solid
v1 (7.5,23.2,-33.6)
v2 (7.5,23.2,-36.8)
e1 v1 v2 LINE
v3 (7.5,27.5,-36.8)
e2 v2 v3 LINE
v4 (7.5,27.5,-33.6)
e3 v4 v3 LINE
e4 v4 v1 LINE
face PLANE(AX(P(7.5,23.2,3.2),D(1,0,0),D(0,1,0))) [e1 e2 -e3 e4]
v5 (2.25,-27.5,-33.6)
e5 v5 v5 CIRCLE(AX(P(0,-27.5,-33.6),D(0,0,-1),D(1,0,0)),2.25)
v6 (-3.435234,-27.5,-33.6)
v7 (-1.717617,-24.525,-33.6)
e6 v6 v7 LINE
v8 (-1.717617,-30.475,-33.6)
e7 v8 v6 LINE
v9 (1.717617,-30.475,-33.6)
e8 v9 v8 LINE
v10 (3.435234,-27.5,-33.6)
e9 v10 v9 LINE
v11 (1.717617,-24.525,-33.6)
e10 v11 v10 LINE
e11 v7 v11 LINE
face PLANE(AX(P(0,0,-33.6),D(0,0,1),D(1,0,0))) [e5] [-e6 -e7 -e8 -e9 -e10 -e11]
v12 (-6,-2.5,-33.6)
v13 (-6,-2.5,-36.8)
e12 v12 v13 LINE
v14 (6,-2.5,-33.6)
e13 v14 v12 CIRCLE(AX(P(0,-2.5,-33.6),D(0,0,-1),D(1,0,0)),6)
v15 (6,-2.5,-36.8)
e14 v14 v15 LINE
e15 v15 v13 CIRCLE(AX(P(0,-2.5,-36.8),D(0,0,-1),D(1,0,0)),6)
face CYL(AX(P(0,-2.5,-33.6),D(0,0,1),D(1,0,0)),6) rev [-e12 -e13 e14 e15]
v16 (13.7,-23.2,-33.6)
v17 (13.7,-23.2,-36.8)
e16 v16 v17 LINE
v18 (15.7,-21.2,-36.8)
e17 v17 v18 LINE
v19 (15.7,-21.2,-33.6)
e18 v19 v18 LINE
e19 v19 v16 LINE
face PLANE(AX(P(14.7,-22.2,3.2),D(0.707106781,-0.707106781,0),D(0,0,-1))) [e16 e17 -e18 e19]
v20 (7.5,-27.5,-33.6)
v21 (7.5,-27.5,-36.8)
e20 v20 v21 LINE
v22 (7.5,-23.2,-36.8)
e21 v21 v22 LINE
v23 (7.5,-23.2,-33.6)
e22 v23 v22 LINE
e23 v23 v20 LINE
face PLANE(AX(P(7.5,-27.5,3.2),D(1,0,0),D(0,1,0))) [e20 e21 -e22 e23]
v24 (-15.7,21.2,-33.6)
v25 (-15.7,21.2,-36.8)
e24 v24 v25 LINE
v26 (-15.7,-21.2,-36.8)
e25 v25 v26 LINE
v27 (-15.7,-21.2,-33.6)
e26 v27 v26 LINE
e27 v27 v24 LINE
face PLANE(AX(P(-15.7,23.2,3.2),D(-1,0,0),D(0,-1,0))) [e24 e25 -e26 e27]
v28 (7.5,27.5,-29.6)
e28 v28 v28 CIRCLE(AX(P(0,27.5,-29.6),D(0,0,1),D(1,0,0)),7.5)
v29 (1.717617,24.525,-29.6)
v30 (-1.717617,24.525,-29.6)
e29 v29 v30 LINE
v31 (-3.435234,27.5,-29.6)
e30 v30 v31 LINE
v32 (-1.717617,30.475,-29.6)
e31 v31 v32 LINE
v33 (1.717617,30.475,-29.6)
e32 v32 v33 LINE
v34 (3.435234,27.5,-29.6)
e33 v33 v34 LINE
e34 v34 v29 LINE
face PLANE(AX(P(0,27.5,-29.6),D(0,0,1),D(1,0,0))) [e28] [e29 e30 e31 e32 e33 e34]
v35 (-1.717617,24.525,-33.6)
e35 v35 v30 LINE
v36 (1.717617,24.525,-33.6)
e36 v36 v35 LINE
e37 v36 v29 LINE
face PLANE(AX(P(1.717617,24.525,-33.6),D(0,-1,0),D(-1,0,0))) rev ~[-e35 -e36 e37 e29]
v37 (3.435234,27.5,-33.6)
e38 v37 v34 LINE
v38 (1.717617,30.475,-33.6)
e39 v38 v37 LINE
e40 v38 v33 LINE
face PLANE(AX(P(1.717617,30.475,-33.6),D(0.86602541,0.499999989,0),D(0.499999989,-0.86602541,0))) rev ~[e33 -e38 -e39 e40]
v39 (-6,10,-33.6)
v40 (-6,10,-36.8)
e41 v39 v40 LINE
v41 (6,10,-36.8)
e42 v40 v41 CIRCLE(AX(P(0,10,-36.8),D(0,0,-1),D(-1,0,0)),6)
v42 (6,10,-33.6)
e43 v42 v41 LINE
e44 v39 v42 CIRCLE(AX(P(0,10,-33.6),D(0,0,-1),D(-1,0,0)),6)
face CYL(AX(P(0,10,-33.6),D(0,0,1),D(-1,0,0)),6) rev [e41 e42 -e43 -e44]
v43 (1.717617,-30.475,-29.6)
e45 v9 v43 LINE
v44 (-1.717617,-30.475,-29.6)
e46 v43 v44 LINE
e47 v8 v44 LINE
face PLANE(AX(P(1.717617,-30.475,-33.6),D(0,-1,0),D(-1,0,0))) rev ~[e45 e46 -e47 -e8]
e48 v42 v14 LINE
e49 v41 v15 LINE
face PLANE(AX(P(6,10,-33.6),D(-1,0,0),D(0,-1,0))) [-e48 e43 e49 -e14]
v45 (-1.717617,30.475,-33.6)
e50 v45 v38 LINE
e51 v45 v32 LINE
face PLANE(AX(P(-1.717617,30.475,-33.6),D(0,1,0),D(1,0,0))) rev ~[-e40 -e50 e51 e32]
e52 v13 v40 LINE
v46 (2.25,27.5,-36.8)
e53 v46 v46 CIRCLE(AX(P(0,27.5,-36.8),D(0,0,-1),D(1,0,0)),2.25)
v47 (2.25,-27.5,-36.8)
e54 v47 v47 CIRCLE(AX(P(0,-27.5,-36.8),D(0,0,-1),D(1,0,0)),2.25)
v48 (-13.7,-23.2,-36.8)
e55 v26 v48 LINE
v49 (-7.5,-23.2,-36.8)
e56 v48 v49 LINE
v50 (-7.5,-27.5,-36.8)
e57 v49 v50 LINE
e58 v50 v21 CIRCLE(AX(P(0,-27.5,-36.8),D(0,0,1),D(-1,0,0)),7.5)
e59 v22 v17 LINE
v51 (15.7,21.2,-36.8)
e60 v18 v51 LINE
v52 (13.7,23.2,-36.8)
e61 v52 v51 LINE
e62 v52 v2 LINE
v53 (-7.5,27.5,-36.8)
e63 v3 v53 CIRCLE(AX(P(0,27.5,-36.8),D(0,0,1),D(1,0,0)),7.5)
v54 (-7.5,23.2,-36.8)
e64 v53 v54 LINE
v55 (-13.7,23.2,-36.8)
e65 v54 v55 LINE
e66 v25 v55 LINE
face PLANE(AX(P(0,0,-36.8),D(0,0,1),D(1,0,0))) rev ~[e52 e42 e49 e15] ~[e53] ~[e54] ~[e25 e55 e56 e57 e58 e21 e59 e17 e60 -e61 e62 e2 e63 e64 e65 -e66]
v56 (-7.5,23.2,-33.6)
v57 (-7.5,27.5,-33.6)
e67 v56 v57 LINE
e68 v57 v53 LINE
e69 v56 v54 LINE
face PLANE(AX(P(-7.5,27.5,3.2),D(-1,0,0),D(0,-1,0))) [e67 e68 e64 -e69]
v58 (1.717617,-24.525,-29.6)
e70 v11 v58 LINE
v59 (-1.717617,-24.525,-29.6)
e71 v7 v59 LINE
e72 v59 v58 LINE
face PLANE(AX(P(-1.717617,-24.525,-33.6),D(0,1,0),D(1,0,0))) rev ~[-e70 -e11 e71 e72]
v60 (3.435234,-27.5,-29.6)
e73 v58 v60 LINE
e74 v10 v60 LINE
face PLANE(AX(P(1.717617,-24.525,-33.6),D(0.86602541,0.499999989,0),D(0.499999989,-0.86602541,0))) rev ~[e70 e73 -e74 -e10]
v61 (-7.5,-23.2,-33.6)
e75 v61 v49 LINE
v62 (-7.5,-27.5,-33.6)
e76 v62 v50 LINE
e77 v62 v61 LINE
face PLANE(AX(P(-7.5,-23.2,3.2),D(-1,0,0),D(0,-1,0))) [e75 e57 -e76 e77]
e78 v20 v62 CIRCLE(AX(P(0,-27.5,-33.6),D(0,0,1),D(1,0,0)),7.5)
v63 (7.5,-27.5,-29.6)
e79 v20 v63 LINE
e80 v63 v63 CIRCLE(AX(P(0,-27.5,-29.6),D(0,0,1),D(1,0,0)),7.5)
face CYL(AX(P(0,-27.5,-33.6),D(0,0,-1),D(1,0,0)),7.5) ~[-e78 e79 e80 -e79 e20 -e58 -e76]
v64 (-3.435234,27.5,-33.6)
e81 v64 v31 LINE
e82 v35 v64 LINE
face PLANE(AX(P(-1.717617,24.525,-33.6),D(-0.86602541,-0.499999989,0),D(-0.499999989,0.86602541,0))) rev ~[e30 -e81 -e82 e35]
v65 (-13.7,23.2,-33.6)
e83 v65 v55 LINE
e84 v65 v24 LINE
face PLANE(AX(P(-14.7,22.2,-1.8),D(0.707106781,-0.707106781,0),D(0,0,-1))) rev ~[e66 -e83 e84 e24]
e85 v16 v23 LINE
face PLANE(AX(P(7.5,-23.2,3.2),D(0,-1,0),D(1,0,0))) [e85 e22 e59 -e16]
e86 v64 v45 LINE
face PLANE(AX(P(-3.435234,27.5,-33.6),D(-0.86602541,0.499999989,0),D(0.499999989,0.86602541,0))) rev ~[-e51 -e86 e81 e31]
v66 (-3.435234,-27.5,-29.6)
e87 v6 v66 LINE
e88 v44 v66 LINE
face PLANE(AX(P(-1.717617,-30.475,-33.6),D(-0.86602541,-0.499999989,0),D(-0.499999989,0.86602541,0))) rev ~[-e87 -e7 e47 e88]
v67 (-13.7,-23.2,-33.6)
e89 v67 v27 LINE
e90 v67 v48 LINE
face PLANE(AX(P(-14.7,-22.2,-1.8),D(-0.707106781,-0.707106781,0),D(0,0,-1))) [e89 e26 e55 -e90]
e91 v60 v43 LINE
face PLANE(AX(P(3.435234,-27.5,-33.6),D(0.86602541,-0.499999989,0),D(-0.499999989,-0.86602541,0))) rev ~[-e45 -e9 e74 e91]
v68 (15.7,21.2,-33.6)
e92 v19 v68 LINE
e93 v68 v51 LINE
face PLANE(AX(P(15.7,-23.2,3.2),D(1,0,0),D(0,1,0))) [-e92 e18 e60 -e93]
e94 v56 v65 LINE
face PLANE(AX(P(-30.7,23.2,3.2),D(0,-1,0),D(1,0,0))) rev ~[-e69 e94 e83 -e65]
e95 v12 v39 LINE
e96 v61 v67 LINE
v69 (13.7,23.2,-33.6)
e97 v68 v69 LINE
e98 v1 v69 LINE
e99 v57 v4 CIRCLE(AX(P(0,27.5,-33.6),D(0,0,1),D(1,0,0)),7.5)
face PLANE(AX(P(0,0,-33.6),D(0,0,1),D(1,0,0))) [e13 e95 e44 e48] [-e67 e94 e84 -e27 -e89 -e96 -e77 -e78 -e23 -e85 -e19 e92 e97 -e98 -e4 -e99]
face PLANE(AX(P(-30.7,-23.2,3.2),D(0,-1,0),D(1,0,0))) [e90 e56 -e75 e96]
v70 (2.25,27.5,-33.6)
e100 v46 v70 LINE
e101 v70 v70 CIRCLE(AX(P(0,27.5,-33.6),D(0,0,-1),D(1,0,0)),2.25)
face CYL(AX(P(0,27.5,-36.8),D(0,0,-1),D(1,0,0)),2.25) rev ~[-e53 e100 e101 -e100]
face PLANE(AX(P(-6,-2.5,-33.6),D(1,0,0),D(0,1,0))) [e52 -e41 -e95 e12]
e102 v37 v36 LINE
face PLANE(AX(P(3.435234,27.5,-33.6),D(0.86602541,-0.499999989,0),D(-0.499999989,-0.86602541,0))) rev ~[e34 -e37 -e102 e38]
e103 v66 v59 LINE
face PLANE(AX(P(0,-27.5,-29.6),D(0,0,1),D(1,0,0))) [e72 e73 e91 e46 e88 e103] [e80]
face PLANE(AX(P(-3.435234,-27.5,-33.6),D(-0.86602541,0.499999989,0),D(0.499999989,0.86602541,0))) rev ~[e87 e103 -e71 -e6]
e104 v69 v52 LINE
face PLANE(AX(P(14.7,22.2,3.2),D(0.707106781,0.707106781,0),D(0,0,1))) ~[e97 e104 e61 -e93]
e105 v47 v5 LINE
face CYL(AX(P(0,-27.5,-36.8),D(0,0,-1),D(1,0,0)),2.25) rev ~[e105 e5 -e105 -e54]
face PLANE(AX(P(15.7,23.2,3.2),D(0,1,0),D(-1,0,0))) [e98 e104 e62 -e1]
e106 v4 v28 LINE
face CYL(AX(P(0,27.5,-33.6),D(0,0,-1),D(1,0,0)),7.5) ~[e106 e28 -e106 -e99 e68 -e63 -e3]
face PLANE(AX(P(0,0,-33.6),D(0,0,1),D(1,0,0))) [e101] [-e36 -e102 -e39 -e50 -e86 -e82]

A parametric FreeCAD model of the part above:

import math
import FreeCAD as App
import Part
import Sketcher

V = App.Vector
Q = App.Units.Quantity


def edges_at(feature, points):
    """Names of the edges that pass closest to the given points."""
    edges = feature.Shape.Edges
    near = lambda p: min(range(len(edges)), key=lambda i: edges[i].distToShape(Part.Vertex(*p))[0])
    return sorted({f"Edge{near(p) + 1}" for p in points})


def add_polygon(sketch, points):
    """Adds a closed chain of lines whose ends are joined by coincident constraints."""
    first, n = sketch.GeometryCount, len(points)
    for a, b in zip(points, points[1:] + points[:1]):
        sketch.addGeometry(Part.LineSegment(App.Vector(*a, 0), App.Vector(*b, 0)), False)
    for i in range(n):
        sketch.addConstraint(Sketcher.Constraint("Coincident", first + i, 2, first + (i + 1) % n, 1))

doc = App.newDocument("Part")
body = doc.addObject("PartDesign::Body", "Body")

# Sketch on XY plane
sketch1 = doc.addObject("Sketcher::SketchObject", "Sketch")
body.addObject(sketch1)
sketch1.AttachmentSupport = (doc.XY_Plane, [""])
sketch1.MapMode = "FlatFace"
add_polygon(sketch1, [(-12.5, 20), (-12.5, -20), (12.5, -20), (12.5, 20)])  # lines 0-3
sketch1.addGeometry(Part.Circle(V(0, 0, 0), V(0, 0, 1), 6.25), False)  # 4
sketch1.addConstraint([
    Sketcher.Constraint("Vertical", 0),
    Sketcher.Constraint("Horizontal", 1),
    Sketcher.Constraint("Vertical", 2),
    Sketcher.Constraint("Horizontal", 3),
    Sketcher.Constraint("Coincident", 4, 3, -1, 1),
    Sketcher.Constraint("Symmetric", 0, 2, 2, 2, -1, 1),
    Sketcher.Constraint("Diameter", 4, Q("12.5 mm")),
    Sketcher.Constraint("DistanceX", 1, 1, 1, 2, Q("25 mm")),
    Sketcher.Constraint("DistanceY", 0, 2, 0, 1, Q("40 mm")),
])
pad1 = doc.addObject("PartDesign::Pad", "Pad")
body.addObject(pad1)
pad1.Profile = sketch1
pad1.Length = 3.2

# Sketch on XY plane
sketch2 = doc.addObject("Sketcher::SketchObject", "Sketch001")
body.addObject(sketch2)
sketch2.AttachmentSupport = (doc.XY_Plane, [""])
sketch2.MapMode = "FlatFace"
sketch2.AttachmentOffset = App.Placement(V(0, 0, 3.2), App.Rotation())
sketch2.addGeometry(Part.LineSegment(V(15.7, -23.2, 0), V(15.7, 23.2, 0)), False)  # 0
sketch2.addGeometry(Part.LineSegment(V(15.7, 23.2, 0), V(7.5, 23.2, 0)), False)  # 1
sketch2.addGeometry(Part.LineSegment(V(7.5, 23.2, 0), V(7.5, 27.5, 0)), False)  # 2
sketch2.addGeometry(Part.ArcOfCircle(Part.Circle(V(0, 27.5, 0), V(0, 0, 1), 7.5), math.radians(0), math.radians(180)), False)  # 3
sketch2.addGeometry(Part.LineSegment(V(-7.5, 27.5, 0), V(-7.5, 23.2, 0)), False)  # 4
sketch2.addGeometry(Part.LineSegment(V(-7.5, 23.2, 0), V(-15.7, 23.2, 0)), False)  # 5
sketch2.addGeometry(Part.LineSegment(V(-15.7, 23.2, 0), V(-15.7, -23.2, 0)), False)  # 6
sketch2.addGeometry(Part.LineSegment(V(-15.7, -23.2, 0), V(-7.5, -23.2, 0)), False)  # 7
sketch2.addGeometry(Part.LineSegment(V(-7.5, -23.2, 0), V(-7.5, -27.5, 0)), False)  # 8
sketch2.addGeometry(Part.ArcOfCircle(Part.Circle(V(0, -27.5, 0), V(0, 0, 1), 7.5), math.radians(180), math.radians(360)), False)  # 9
sketch2.addGeometry(Part.LineSegment(V(7.5, -27.5, 0), V(7.5, -23.2, 0)), False)  # 10
sketch2.addGeometry(Part.LineSegment(V(7.5, -23.2, 0), V(15.7, -23.2, 0)), False)  # 11
add_polygon(sketch2, [(-1.717617, -30.475), (-3.435234, -27.5), (-1.717617, -24.525), (1.717617, -24.525), (3.435234, -27.5), (1.717617, -30.475)])  # lines 12-17
add_polygon(sketch2, [(12.5, -20), (-12.5, -20), (-12.5, 20), (12.5, 20)])  # lines 18-21
add_polygon(sketch2, [(-1.717617, 24.525), (-3.435234, 27.5), (-1.717617, 30.475), (1.717617, 30.475), (3.435234, 27.5), (1.717617, 24.525)])  # lines 22-27
sketch2.addConstraint([
    Sketcher.Constraint("Coincident", 0, 2, 1, 1),
    Sketcher.Constraint("Coincident", 1, 2, 2, 1),
    Sketcher.Constraint("Tangent", 2, 2, 3, 1),
    Sketcher.Constraint("Tangent", 3, 2, 4, 1),
    Sketcher.Constraint("Coincident", 4, 2, 5, 1),
    Sketcher.Constraint("Coincident", 5, 2, 6, 1),
    Sketcher.Constraint("Coincident", 6, 2, 7, 1),
    Sketcher.Constraint("Coincident", 7, 2, 8, 1),
    Sketcher.Constraint("Tangent", 8, 2, 9, 1),
    Sketcher.Constraint("Tangent", 9, 2, 10, 1),
    Sketcher.Constraint("Coincident", 10, 2, 11, 1),
    Sketcher.Constraint("Coincident", 11, 2, 0, 1),
    Sketcher.Constraint("Vertical", 0),
    Sketcher.Constraint("Horizontal", 1),
    Sketcher.Constraint("Vertical", 2),
    Sketcher.Constraint("Vertical", 4),
    Sketcher.Constraint("Horizontal", 5),
    Sketcher.Constraint("Vertical", 6),
    Sketcher.Constraint("Horizontal", 7),
    Sketcher.Constraint("Vertical", 8),
    Sketcher.Constraint("Vertical", 10),
    Sketcher.Constraint("Horizontal", 11),
    Sketcher.Constraint("Horizontal", 14),
    Sketcher.Constraint("Horizontal", 17),
    Sketcher.Constraint("Horizontal", 18),
    Sketcher.Constraint("Vertical", 19),
    Sketcher.Constraint("Horizontal", 20),
    Sketcher.Constraint("Vertical", 21),
    Sketcher.Constraint("Horizontal", 24),
    Sketcher.Constraint("Horizontal", 27),
    Sketcher.Constraint("Equal", 3, 9),
    Sketcher.Constraint("Symmetric", 3, 3, 9, 3, -1, 1),
    Sketcher.Constraint("Symmetric", 0, 2, 6, 2, -1, 1),
    Sketcher.Constraint("Symmetric", 18, 2, 20, 2, -1, 1),
    Sketcher.Constraint("Symmetric", 15, 2, 22, 2, -1, 1),
    Sketcher.Constraint("Symmetric", 16, 2, 23, 2, -1, 1),
    Sketcher.Constraint("Symmetric", 12, 2, 25, 2, -1, 1),
    Sketcher.Constraint("Symmetric", 13, 2, 26, 2, -1, 1),
    Sketcher.Constraint("Symmetric", 1, 2, 4, 2, -2),
    Sketcher.Constraint("Symmetric", 12, 2, 15, 2, -2),
    Sketcher.Constraint("Parallel", 12, 15),
    Sketcher.Constraint("Parallel", 13, 16),
    Sketcher.Constraint("Parallel", 15, 22),
    Sketcher.Constraint("Parallel", 22, 25),
    Sketcher.Constraint("Horizontal", 7, 2, 10, 2),
    Sketcher.Constraint("Horizontal", 9, 2, 12, 2),
    Sketcher.Constraint("Vertical", 14, 2, 16, 2),
    Sketcher.Constraint("Vertical", 13, 2, 17, 2),
    Sketcher.Constraint("Radius", 3, Q("7.5 mm")),
    Sketcher.Constraint("DistanceX", 18, 2, 18, 1, Q("25 mm")),
    Sketcher.Constraint("DistanceY", 19, 1, 19, 2, Q("40 mm")),
    Sketcher.Constraint("Angle", 12, Q("119.999999 deg")),
    Sketcher.Constraint("DistanceX", 1, 2, 1, 1, Q("8.2 mm")),
    Sketcher.Constraint("DistanceY", 0, 1, 0, 2, Q("46.4 mm")),
    Sketcher.Constraint("DistanceY", 2, 1, 2, 2, Q("4.3 mm")),
    Sketcher.Constraint("DistanceY", 16, 2, 14, 2, Q("5.95 mm")),
    Sketcher.Constraint("DistanceX", 14, 1, 14, 2, Q("3.435234 mm")),
])
pad2 = doc.addObject("PartDesign::Pad", "Pad001")
body.addObject(pad2)
pad2.Profile = sketch2
pad2.Length = 40
pad2.Reversed = True

# Sketch on XY plane
sketch3 = doc.addObject("Sketcher::SketchObject", "Sketch002")
body.addObject(sketch3)
sketch3.AttachmentSupport = (doc.XY_Plane, [""])
sketch3.MapMode = "FlatFace"
sketch3.AttachmentOffset = App.Placement(V(0, 0, 3.2), App.Rotation())
add_polygon(sketch3, [(-30.7, 23.2), (-30.7, -23.2), (-15.7, -23.2), (-15.7, 23.2)])  # lines 0-3
sketch3.addGeometry(Part.Circle(V(-23.2, -13.2, 0), V(0, 0, 1), 2.25), False)  # 4
sketch3.addGeometry(Part.Circle(V(-23.2, 13.2, 0), V(0, 0, 1), 2.25), False)  # 5
sketch3.addConstraint([
    Sketcher.Constraint("Vertical", 0),
    Sketcher.Constraint("Horizontal", 1),
    Sketcher.Constraint("Vertical", 2),
    Sketcher.Constraint("Horizontal", 3),
    Sketcher.Constraint("Equal", 4, 5),
    Sketcher.Constraint("Symmetric", 4, 3, 5, 3, -1),
    Sketcher.Constraint("Diameter", 4, Q("4.5 mm")),
    Sketcher.Constraint("DistanceX", 1, 1, 1, 2, Q("15 mm")),
    Sketcher.Constraint("DistanceY", 0, 2, 0, 1, Q("46.4 mm")),
    Sketcher.Constraint("DistanceY", 0, 2, 4, 3, Q("10 mm")),
    Sketcher.Constraint("DistanceY", 5, 3, 2, 2, Q("10 mm")),
    Sketcher.Constraint("DistanceX", 4, 3, -1, 1, Q("23.2 mm")),
    Sketcher.Constraint("DistanceX", 0, 2, -1, 1, Q("30.7 mm")),
])
pad3 = doc.addObject("PartDesign::Pad", "Pad002")
body.addObject(pad3)
pad3.Profile = sketch3
pad3.Length = 5
pad3.Reversed = True
doc.recompute()

chamfer = doc.addObject("PartDesign::Chamfer", "Chamfer")
body.addObject(chamfer)
chamfer.Base = (pad3, edges_at(pad3, [
    (15.7, 23.2, -16.8),
    (-15.7, 23.2, -19.3),
    (-15.7, -23.2, -19.3),
    (15.7, -23.2, -16.8),
    (-30.7, 23.2, 0.7),
    (-30.7, -23.2, 0.7),
]))
chamfer.Size = 2

# Sketch on XY plane
sketch4 = doc.addObject("Sketcher::SketchObject", "Sketch003")
body.addObject(sketch4)
sketch4.AttachmentSupport = (doc.XY_Plane, [""])
sketch4.MapMode = "FlatFace"
sketch4.AttachmentOffset = App.Placement(V(0, 0, -36.8), App.Rotation())
add_polygon(sketch4, [(1.717617, -30.475), (-1.717617, -30.475), (-3.435234, -27.5), (-1.717617, -24.525), (1.717617, -24.525), (3.435234, -27.5)])  # lines 0-5
sketch4.addGeometry(Part.Circle(V(0, -27.5, 0), V(0, 0, 1), 2.25), False)  # 6
add_polygon(sketch4, [(-3.435234, 27.5), (-1.717617, 30.475), (1.717617, 30.475), (3.435234, 27.5), (1.717617, 24.525), (-1.717617, 24.525)])  # lines 7-12
sketch4.addGeometry(Part.Circle(V(0, 27.5, 0), V(0, 0, 1), 2.25), False)  # 13
sketch4.addConstraint([
    Sketcher.Constraint("Horizontal", 0),
    Sketcher.Constraint("Horizontal", 3),
    Sketcher.Constraint("Horizontal", 8),
    Sketcher.Constraint("Horizontal", 11),
    Sketcher.Constraint("Equal", 6, 13),
    Sketcher.Constraint("Symmetric", 6, 3, 13, 3, -1, 1),
    Sketcher.Constraint("Symmetric", 5, 2, 7, 2, -1, 1),
    Sketcher.Constraint("Symmetric", 1, 2, 9, 2, -1, 1),
    Sketcher.Constraint("Symmetric", 2, 2, 10, 2, -1, 1),
    Sketcher.Constraint("Symmetric", 4, 2, 12, 2, -1, 1),
    Sketcher.Constraint("Symmetric", 1, 2, 4, 2, -2),
    Sketcher.Constraint("PointOnObject", 6, 3, -2),
    Sketcher.Constraint("Parallel", 1, 4),
    Sketcher.Constraint("Parallel", 2, 5),
    Sketcher.Constraint("Parallel", 4, 9),
    Sketcher.Constraint("Parallel", 9, 12),
    Sketcher.Constraint("Horizontal", 6, 3, 1, 2),
    Sketcher.Constraint("Vertical", 0, 2, 2, 2),
    Sketcher.Constraint("Vertical", 3, 2, 5, 2),
    Sketcher.Constraint("Diameter", 6, Q("4.5 mm")),
    Sketcher.Constraint("Angle", 1, Q("119.999999 deg")),
    Sketcher.Constraint("DistanceY", 6, 3, 13, 3, Q("55 mm")),
    Sketcher.Constraint("DistanceY", 0, 2, 2, 2, Q("5.95 mm")),
    Sketcher.Constraint("DistanceX", 0, 2, 0, 1, Q("3.435234 mm")),
])
pad4 = doc.addObject("PartDesign::Pad", "Pad003")
body.addObject(pad4)
pad4.Profile = sketch4
pad4.Length = 3.2

# Sketch on XY plane
sketch5 = doc.addObject("Sketcher::SketchObject", "Sketch004")
body.addObject(sketch5)
sketch5.AttachmentSupport = (doc.XY_Plane, [""])
sketch5.MapMode = "FlatFace"
sketch5.AttachmentOffset = App.Placement(V(0, 0, 3.2), App.Rotation())
add_polygon(sketch5, [(-30.7, 35), (-30.7, -35), (15.7, -35), (15.7, 35)])  # lines 0-3
sketch5.addConstraint([
    Sketcher.Constraint("Vertical", 0),
    Sketcher.Constraint("Horizontal", 1),
    Sketcher.Constraint("Vertical", 2),
    Sketcher.Constraint("Horizontal", 3),
    Sketcher.Constraint("DistanceY", 0, 2, 0, 1, Q("70 mm")),
    Sketcher.Constraint("DistanceX", 1, 1, 1, 2, Q("46.4 mm")),
    Sketcher.Constraint("DistanceY", 0, 2, -1, 1, Q("35 mm")),
    Sketcher.Constraint("DistanceX", 0, 2, -1, 1, Q("30.7 mm")),
])
pocket1 = doc.addObject("PartDesign::Pocket", "Pocket")
body.addObject(pocket1)
pocket1.Profile = sketch5
pocket1.Length = 36.8

# Sketch on XY plane
sketch6 = doc.addObject("Sketcher::SketchObject", "Sketch005")
body.addObject(sketch6)
sketch6.AttachmentSupport = (doc.XY_Plane, [""])
sketch6.MapMode = "FlatFace"
sketch6.AttachmentOffset = App.Placement(V(0, 0, -33.6), App.Rotation())
add_polygon(sketch6, [(-12.5, 20), (-12.5, -20), (12.5, -20), (12.5, 20)])  # lines 0-3
sketch6.addGeometry(Part.LineSegment(V(-6, -2.5, 0), V(-6, 10, 0)), False)  # 4
sketch6.addGeometry(Part.ArcOfCircle(Part.Circle(V(0, 10, 0), V(0, 0, 1), 6), math.radians(0), math.radians(180)), False)  # 5
sketch6.addGeometry(Part.LineSegment(V(6, 10, 0), V(6, -2.5, 0)), False)  # 6
sketch6.addGeometry(Part.ArcOfCircle(Part.Circle(V(0, -2.5, 0), V(0, 0, 1), 6), math.radians(180), math.radians(360)), False)  # 7
sketch6.addConstraint([
    Sketcher.Constraint("Tangent", 4, 2, 5, 2),
    Sketcher.Constraint("Tangent", 5, 1, 6, 1),
    Sketcher.Constraint("Tangent", 6, 2, 7, 2),
    Sketcher.Constraint("Tangent", 7, 1, 4, 1),
    Sketcher.Constraint("Vertical", 0),
    Sketcher.Constraint("Horizontal", 1),
    Sketcher.Constraint("Vertical", 2),
    Sketcher.Constraint("Horizontal", 3),
    Sketcher.Constraint("Vertical", 4),
    Sketcher.Constraint("Vertical", 6),
    Sketcher.Constraint("Symmetric", 0, 2, 2, 2, -1, 1),
    Sketcher.Constraint("PointOnObject", 5, 3, -2),
    Sketcher.Constraint("Radius", 5, Q("6 mm")),
    Sketcher.Constraint("DistanceX", 1, 1, 1, 2, Q("25 mm")),
    Sketcher.Constraint("DistanceY", 0, 2, 0, 1, Q("40 mm")),
    Sketcher.Constraint("DistanceY", 4, 1, 4, 2, Q("12.5 mm")),
    Sketcher.Constraint("DistanceY", -1, 1, 5, 3, Q("10 mm")),
])
pad5 = doc.addObject("PartDesign::Pad", "Pad004")
body.addObject(pad5)
pad5.Profile = sketch6
pad5.Length = 3.2
pad5.Reversed = True

# Sketch on XY plane
sketch7 = doc.addObject("Sketcher::SketchObject", "Sketch006")
body.addObject(sketch7)
sketch7.AttachmentSupport = (doc.XY_Plane, [""])
sketch7.MapMode = "FlatFace"
sketch7.AttachmentOffset = App.Placement(V(0, 0, -33.6), App.Rotation())
sketch7.addGeometry(Part.Circle(V(0, 27.5, 0), V(0, 0, 1), 7.5), False)  # 0
add_polygon(sketch7, [(-1.717617, 24.525), (-3.435234, 27.5), (-1.717617, 30.475), (1.717617, 30.475), (3.435234, 27.5), (1.717617, 24.525)])  # lines 1-6
sketch7.addGeometry(Part.Circle(V(0, -27.5, 0), V(0, 0, 1), 7.5), False)  # 7
add_polygon(sketch7, [(-1.717617, -30.475), (-3.435234, -27.5), (-1.717617, -24.525), (1.717617, -24.525), (3.435234, -27.5), (1.717617, -30.475)])  # lines 8-13
sketch7.addConstraint([
    Sketcher.Constraint("Horizontal", 3),
    Sketcher.Constraint("Horizontal", 6),
    Sketcher.Constraint("Horizontal", 10),
    Sketcher.Constraint("Horizontal", 13),
    Sketcher.Constraint("Equal", 0, 7),
    Sketcher.Constraint("Symmetric", 0, 3, 7, 3, -1, 1),
    Sketcher.Constraint("Symmetric", 4, 2, 8, 2, -1, 1),
    Sketcher.Constraint("Symmetric", 5, 2, 9, 2, -1, 1),
    Sketcher.Constraint("Symmetric", 1, 2, 11, 2, -1, 1),
    Sketcher.Constraint("Symmetric", 2, 2, 12, 2, -1, 1),
    Sketcher.Constraint("Symmetric", 1, 2, 4, 2, -2),
    Sketcher.Constraint("PointOnObject", 0, 3, -2),
    Sketcher.Constraint("Parallel", 1, 4),
    Sketcher.Constraint("Parallel", 2, 5),
    Sketcher.Constraint("Parallel", 4, 8),
    Sketcher.Constraint("Parallel", 8, 11),
    Sketcher.Constraint("Horizontal", 0, 3, 1, 2),
    Sketcher.Constraint("Vertical", 3, 2, 5, 2),
    Sketcher.Constraint("Vertical", 2, 2, 6, 2),
    Sketcher.Constraint("Diameter", 0, Q("15 mm")),
    Sketcher.Constraint("Angle", 1, Q("119.999999 deg")),
    Sketcher.Constraint("DistanceY", 7, 3, 0, 3, Q("55 mm")),
    Sketcher.Constraint("DistanceY", 5, 2, 3, 2, Q("5.95 mm")),
    Sketcher.Constraint("DistanceX", 3, 1, 3, 2, Q("3.435234 mm")),
])
pad6 = doc.addObject("PartDesign::Pad", "Pad005")
body.addObject(pad6)
pad6.Profile = sketch7
pad6.Length = 4

doc.recompute()
